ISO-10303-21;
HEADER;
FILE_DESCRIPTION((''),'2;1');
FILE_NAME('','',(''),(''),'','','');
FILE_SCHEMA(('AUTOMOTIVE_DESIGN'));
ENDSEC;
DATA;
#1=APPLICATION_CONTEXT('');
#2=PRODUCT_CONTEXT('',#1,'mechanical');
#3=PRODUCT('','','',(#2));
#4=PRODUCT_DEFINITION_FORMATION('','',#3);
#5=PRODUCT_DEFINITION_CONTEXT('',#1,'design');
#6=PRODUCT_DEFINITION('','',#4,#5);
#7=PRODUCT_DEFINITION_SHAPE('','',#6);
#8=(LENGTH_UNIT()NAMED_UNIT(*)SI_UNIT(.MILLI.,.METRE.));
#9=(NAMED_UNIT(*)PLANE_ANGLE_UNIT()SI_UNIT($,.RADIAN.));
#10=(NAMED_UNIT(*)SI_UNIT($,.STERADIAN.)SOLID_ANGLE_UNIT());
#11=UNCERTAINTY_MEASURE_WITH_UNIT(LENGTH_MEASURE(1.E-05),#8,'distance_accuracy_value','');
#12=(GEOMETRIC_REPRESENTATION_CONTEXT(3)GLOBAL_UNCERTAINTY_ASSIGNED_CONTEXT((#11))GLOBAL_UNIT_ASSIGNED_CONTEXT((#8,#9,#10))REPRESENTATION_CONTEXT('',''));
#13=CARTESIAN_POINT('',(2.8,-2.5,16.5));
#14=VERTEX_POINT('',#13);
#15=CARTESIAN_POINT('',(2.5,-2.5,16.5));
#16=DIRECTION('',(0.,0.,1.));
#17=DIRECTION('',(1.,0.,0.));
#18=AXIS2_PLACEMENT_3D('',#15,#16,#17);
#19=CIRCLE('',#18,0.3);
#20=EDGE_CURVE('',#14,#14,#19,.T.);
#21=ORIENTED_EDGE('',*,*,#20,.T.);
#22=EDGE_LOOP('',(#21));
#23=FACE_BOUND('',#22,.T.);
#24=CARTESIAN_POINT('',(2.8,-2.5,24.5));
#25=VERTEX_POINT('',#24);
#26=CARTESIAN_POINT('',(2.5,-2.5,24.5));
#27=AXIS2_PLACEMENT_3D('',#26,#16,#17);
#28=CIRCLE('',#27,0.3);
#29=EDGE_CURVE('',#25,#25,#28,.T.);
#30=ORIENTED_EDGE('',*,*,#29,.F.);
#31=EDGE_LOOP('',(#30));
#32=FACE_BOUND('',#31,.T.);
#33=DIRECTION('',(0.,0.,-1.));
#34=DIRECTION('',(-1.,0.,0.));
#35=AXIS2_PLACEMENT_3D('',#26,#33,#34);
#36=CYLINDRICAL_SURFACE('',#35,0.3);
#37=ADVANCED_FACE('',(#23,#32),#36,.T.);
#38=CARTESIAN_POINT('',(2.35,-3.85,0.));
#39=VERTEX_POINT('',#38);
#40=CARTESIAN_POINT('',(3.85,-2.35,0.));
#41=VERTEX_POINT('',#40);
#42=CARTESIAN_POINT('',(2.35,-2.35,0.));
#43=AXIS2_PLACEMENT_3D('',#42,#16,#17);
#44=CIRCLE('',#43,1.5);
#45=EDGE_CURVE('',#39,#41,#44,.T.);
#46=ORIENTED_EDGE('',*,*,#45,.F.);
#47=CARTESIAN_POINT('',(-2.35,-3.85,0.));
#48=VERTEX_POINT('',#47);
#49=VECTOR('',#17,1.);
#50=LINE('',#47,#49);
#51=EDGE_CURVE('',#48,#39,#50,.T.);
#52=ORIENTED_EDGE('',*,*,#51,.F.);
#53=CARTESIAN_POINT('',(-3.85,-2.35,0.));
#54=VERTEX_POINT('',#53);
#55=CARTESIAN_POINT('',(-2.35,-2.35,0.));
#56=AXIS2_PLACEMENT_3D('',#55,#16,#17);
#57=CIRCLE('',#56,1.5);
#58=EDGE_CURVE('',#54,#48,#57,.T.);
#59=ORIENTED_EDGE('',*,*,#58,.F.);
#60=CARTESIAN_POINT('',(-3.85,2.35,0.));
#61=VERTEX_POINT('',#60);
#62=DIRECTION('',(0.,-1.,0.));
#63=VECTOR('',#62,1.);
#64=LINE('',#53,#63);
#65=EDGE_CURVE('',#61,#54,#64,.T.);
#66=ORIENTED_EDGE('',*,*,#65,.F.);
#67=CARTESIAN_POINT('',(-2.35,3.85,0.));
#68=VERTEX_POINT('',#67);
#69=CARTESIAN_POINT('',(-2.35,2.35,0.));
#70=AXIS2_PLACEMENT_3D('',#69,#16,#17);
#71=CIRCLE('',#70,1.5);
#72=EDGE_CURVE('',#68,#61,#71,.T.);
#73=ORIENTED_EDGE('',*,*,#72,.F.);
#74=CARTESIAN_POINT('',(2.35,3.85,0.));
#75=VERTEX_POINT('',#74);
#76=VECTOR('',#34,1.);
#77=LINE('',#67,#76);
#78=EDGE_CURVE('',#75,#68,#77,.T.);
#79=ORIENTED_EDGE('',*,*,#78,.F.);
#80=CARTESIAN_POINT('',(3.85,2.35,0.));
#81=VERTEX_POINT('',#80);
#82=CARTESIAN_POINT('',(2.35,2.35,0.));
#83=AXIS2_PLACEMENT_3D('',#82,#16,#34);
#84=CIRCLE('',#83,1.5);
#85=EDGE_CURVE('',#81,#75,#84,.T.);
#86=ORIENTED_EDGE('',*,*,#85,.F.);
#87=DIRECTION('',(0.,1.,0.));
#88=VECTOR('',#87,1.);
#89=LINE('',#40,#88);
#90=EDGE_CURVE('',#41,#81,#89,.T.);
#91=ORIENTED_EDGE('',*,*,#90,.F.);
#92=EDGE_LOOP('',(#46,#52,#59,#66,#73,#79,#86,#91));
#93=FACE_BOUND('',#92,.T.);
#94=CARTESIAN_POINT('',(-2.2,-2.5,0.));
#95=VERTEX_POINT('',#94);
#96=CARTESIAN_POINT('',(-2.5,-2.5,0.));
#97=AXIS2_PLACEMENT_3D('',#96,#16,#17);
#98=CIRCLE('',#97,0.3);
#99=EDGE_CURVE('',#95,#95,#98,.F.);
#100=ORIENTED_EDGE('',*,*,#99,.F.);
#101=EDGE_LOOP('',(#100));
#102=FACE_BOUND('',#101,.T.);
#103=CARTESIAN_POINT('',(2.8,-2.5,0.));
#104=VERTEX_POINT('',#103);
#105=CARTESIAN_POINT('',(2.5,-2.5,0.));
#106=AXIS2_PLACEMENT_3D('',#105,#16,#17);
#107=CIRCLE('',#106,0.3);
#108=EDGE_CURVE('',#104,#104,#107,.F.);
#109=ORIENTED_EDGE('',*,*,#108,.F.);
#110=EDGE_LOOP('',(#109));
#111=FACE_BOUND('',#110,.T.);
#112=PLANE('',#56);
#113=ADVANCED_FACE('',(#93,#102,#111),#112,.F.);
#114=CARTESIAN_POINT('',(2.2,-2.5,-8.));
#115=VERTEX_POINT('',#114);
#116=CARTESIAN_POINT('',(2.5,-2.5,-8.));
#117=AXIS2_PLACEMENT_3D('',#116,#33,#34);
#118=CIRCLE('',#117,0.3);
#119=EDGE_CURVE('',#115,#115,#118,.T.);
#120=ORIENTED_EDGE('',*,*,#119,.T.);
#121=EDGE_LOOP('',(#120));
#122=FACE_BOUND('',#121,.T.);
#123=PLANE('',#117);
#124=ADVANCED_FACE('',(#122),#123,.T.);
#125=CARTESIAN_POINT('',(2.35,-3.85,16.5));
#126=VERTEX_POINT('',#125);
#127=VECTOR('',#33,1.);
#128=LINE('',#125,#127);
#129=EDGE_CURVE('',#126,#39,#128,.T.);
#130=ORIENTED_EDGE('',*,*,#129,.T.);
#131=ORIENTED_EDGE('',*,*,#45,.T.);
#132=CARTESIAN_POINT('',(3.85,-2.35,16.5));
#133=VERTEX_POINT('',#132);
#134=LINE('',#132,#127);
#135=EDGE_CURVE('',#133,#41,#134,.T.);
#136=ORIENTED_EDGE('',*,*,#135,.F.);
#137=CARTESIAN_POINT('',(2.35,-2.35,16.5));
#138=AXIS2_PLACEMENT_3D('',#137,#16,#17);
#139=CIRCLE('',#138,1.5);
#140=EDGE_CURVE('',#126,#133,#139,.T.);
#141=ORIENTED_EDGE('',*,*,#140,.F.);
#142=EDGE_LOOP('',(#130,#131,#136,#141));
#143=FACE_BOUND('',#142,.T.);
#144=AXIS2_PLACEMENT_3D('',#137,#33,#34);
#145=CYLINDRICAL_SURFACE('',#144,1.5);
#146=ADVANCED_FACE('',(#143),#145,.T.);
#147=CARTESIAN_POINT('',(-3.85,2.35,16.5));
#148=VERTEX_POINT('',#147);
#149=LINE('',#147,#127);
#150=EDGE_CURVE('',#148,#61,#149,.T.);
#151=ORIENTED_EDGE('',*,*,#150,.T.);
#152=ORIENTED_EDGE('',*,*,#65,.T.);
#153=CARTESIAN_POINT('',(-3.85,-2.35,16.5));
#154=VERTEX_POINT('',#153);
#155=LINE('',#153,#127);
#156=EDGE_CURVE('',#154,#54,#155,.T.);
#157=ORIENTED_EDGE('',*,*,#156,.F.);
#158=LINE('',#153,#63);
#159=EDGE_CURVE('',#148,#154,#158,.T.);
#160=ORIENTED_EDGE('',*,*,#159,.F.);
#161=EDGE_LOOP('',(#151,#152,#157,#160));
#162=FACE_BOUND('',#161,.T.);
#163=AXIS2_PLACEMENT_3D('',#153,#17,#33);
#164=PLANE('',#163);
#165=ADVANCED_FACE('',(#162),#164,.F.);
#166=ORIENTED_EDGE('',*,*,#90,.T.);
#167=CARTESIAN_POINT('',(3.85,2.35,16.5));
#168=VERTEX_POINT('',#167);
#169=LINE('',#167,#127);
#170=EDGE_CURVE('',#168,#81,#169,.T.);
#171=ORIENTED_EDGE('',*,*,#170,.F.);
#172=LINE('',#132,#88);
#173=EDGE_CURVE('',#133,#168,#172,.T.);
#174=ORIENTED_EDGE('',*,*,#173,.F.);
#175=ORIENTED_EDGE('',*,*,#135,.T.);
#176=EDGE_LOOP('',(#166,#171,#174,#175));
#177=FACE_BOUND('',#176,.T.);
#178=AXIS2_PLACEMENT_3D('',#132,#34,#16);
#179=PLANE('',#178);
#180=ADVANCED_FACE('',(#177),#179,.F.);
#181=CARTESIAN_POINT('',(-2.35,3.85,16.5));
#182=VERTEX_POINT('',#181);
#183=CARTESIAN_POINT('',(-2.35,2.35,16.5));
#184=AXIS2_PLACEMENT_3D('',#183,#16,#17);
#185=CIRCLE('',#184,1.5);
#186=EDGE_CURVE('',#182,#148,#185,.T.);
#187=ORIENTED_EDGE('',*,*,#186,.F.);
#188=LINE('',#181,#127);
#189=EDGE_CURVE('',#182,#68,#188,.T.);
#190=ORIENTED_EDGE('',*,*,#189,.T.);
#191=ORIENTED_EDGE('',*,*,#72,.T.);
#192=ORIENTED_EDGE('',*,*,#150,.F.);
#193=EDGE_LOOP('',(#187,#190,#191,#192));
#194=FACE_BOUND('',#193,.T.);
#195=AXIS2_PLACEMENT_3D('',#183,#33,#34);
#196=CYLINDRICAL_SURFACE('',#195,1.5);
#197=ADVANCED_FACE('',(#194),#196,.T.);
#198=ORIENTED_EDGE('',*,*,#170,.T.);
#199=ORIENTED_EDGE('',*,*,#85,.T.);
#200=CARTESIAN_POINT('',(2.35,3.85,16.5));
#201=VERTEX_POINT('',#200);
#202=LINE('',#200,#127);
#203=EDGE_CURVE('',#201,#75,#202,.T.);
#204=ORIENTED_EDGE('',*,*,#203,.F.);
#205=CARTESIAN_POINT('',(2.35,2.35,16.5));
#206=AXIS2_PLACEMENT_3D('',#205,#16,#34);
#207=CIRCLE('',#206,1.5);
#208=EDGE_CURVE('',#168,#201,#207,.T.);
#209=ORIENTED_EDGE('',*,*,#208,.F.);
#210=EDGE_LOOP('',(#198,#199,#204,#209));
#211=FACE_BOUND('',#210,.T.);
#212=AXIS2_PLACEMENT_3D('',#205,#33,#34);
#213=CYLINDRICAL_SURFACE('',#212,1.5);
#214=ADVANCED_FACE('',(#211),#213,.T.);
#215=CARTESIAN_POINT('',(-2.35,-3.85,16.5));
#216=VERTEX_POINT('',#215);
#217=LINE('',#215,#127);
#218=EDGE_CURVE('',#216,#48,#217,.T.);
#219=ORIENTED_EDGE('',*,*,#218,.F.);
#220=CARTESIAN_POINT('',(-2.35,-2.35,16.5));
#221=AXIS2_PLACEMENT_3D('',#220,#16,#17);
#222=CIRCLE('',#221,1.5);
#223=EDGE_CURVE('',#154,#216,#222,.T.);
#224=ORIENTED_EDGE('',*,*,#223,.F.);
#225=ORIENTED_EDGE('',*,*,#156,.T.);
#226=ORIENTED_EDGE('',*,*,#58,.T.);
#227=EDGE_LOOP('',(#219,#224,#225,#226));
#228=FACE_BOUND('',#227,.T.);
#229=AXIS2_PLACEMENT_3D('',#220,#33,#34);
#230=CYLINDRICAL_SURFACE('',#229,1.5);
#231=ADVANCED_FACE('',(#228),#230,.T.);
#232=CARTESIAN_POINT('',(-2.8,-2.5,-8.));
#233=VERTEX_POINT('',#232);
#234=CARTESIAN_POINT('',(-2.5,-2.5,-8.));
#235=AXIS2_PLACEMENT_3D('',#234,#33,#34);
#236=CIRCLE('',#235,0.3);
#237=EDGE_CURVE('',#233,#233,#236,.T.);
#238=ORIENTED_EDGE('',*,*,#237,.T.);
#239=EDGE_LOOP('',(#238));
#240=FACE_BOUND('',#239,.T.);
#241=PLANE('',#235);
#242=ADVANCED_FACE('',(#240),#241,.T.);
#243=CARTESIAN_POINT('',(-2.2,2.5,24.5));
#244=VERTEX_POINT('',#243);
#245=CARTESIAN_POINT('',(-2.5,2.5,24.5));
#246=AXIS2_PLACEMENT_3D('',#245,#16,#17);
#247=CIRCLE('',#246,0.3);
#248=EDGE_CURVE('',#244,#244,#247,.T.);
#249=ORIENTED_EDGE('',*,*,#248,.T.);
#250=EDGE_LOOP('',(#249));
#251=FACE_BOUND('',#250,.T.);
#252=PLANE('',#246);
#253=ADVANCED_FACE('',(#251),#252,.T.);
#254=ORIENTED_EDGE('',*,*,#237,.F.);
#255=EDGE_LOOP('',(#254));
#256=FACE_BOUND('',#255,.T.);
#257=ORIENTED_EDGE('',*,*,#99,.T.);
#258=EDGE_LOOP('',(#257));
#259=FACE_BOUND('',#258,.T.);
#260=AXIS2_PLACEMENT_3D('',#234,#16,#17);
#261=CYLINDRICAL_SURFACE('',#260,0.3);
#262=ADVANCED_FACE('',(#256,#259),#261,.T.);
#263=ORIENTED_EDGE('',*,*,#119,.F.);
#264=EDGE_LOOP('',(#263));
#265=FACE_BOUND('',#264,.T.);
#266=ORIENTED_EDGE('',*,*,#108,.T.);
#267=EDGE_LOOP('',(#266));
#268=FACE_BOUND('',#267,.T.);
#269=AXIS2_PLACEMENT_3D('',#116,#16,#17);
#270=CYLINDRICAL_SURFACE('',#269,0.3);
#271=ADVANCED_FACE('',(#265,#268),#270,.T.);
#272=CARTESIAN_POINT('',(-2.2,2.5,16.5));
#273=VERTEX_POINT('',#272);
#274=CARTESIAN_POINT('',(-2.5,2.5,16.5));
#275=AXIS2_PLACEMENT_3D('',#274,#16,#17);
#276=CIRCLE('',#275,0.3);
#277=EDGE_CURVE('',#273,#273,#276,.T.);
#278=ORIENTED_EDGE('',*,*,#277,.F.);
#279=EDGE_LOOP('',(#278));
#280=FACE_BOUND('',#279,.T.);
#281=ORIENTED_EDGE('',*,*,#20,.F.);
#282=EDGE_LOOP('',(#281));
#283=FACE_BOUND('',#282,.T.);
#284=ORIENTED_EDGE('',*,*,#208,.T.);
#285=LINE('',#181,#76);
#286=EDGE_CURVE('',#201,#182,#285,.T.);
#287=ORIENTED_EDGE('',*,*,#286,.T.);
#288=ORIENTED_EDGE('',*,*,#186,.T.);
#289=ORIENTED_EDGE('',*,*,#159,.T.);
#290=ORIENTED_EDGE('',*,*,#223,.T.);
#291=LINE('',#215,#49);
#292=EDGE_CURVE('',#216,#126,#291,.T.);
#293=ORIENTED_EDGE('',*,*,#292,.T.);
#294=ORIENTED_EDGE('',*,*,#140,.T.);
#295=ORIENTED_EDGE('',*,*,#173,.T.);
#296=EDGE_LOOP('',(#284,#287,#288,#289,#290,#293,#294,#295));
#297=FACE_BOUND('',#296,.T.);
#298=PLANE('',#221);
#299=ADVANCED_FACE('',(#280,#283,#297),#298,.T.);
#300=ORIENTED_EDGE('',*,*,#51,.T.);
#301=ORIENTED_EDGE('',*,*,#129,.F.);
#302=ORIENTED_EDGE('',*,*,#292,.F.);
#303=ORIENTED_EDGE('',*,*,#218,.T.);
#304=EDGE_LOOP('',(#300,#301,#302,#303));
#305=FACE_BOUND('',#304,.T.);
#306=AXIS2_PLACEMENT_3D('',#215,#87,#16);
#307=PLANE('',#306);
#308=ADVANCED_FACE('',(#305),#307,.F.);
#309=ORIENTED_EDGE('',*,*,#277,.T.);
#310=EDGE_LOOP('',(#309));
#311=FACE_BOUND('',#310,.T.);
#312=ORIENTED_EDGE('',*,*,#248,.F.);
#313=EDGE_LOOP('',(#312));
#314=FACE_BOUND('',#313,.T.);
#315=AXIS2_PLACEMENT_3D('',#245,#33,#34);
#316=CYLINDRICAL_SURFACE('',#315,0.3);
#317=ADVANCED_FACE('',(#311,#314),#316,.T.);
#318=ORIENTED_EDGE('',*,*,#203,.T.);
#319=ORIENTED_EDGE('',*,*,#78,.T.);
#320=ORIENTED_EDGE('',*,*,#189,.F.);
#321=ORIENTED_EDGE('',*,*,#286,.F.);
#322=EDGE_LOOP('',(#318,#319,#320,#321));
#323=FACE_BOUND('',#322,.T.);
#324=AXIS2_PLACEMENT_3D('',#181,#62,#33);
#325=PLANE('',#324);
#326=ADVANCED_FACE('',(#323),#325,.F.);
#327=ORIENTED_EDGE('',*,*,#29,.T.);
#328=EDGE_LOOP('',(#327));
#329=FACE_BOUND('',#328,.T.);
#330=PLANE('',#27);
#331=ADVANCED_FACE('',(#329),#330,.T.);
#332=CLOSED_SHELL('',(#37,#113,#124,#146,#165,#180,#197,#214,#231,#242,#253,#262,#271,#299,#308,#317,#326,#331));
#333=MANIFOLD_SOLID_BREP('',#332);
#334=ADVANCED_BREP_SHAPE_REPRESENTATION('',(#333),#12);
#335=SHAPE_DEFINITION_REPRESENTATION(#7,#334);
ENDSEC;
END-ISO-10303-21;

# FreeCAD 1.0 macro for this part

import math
import FreeCAD as App
import Part
import Sketcher
Q = App.Units.Quantity

doc = App.newDocument("Part")
params = doc.addObject("Spreadsheet::Sheet", "Params")
for row, (alias, value) in enumerate([
    ("sketch1_radius", "1.5 mm"),
    ("sketch1_width", "4.7 mm"),
    ("pad1_length", "16.5 mm"),
    ("sketch2_diameter", "0.6 mm"),
    ("pad2_length", "8 mm"),
    ("sketch3_diameter", "0.6 mm"),
    ("pad3_length", "8 mm"),
], start=1):
    params.set(f"A{row}", alias)
    params.set(f"B{row}", "=" + value)
    params.setAlias(f"B{row}", alias)

body = doc.addObject("PartDesign::Body", "Body")

sketch1 = body.newObject("Sketcher::SketchObject", "Sketch")
sketch1.AttachmentSupport = (doc.getObject("XY_Plane"), [""])
sketch1.MapMode = "FlatFace"
sketch1.addGeometry([
    Part.LineSegment(App.Vector(-2.4, -3.9, 0), App.Vector(2.4, -3.9, 0)),
    Part.ArcOfCircle(Part.Circle(App.Vector(2.4, -2.4, 0), App.Vector(0, 0, 1), 1.5), math.radians(-90), math.radians(0)),
    Part.LineSegment(App.Vector(3.9, -2.4, 0), App.Vector(3.9, 2.4, 0)),
    Part.ArcOfCircle(Part.Circle(App.Vector(2.4, 2.4, 0), App.Vector(0, 0, 1), 1.5), math.radians(0), math.radians(90)),
    Part.LineSegment(App.Vector(2.4, 3.9, 0), App.Vector(-2.4, 3.9, 0)),
    Part.ArcOfCircle(Part.Circle(App.Vector(-2.4, 2.4, 0), App.Vector(0, 0, 1), 1.5), math.radians(90), math.radians(180)),
    Part.LineSegment(App.Vector(-3.9, 2.4, 0), App.Vector(-3.9, -2.4, 0)),
    Part.ArcOfCircle(Part.Circle(App.Vector(-2.4, -2.4, 0), App.Vector(0, 0, 1), 1.5), math.radians(180), math.radians(270)),
], False)
sketch1.addConstraint([
    Sketcher.Constraint("Tangent", 0, 2, 1, 1),
    Sketcher.Constraint("Tangent", 1, 2, 2, 1),
    Sketcher.Constraint("Tangent", 2, 2, 3, 1),
    Sketcher.Constraint("Tangent", 3, 2, 4, 1),
    Sketcher.Constraint("Tangent", 4, 2, 5, 1),
    Sketcher.Constraint("Tangent", 5, 2, 6, 1),
    Sketcher.Constraint("Tangent", 6, 2, 7, 1),
    Sketcher.Constraint("Tangent", 7, 2, 0, 1),
    Sketcher.Constraint("Horizontal", 0),
    Sketcher.Constraint("Vertical", 2),
    Sketcher.Constraint("Horizontal", 4),
    Sketcher.Constraint("Vertical", 6),
    Sketcher.Constraint("Equal", 1, 3),
    Sketcher.Constraint("Equal", 3, 5),
    Sketcher.Constraint("Equal", 5, 7),
    Sketcher.Constraint("Symmetric", 1, 3, 5, 3, -1, 1),
    Sketcher.Constraint("Equal", 4, 2),
    Sketcher.Constraint("Radius", 1, Q("1.5 mm")),
    Sketcher.Constraint("DistanceX", 0, 1, 0, 2, Q("4.7 mm")),
])
sketch1.setExpression("Constraints[17]", "Params.sketch1_radius")
sketch1.setExpression("Constraints[18]", "Params.sketch1_width")
pad1 = body.newObject("PartDesign::Pad", "Pad")
pad1.Profile = sketch1
pad1.setExpression("Length", "Params.pad1_length")

sketch2 = body.newObject("Sketcher::SketchObject", "Sketch001")
sketch2.AttachmentSupport = (doc.getObject("XY_Plane"), [""])
sketch2.MapMode = "FlatFace"
sketch2.addGeometry([
    Part.Circle(App.Vector(2.5, -2.5, 0), App.Vector(0, 0, 1), 0.3),
    Part.Circle(App.Vector(-2.5, -2.5, 0), App.Vector(0, 0, 1), 0.3),
], False)
sketch2.addConstraint([
    Sketcher.Constraint("Equal", 0, 1),
    Sketcher.Constraint("Symmetric", 0, 3, 1, 3, -2),
    Sketcher.Constraint("Diameter", 0, Q("0.6 mm")),
    Sketcher.Constraint("DistanceX", 1, 3, 0, 3, Q("5 mm")),
    Sketcher.Constraint("DistanceY", 0, 3, -1, 1, Q("2.5 mm")),
])
sketch2.setExpression("Constraints[2]", "Params.sketch2_diameter")
pad2 = body.newObject("PartDesign::Pad", "Pad001")
pad2.Profile = sketch2
pad2.setExpression("Length", "Params.pad2_length")
pad2.Reversed = True

sketch3 = body.newObject("Sketcher::SketchObject", "Sketch002")
sketch3.AttachmentSupport = (doc.getObject("XY_Plane"), [""])
sketch3.MapMode = "FlatFace"
sketch3.AttachmentOffset = App.Placement(App.Vector(0, 0, 16.5), App.Rotation())
sketch3.addGeometry([
    Part.Circle(App.Vector(2.5, -2.5, 0), App.Vector(0, 0, 1), 0.3),
    Part.Circle(App.Vector(-2.5, 2.5, 0), App.Vector(0, 0, 1), 0.3),
], False)
sketch3.addConstraint([
    Sketcher.Constraint("Equal", 0, 1),
    Sketcher.Constraint("Symmetric", 0, 3, 1, 3, -1, 1),
    Sketcher.Constraint("Diameter", 0, Q("0.6 mm")),
    Sketcher.Constraint("DistanceX", 1, 3, 0, 3, Q("5 mm")),
    Sketcher.Constraint("DistanceY", 0, 3, 1, 3, Q("5 mm")),
])
sketch3.setExpression("Constraints[2]", "Params.sketch3_diameter")
pad3 = body.newObject("PartDesign::Pad", "Pad002")
pad3.Profile = sketch3
pad3.setExpression("Length", "Params.pad3_length")

doc.recompute()
